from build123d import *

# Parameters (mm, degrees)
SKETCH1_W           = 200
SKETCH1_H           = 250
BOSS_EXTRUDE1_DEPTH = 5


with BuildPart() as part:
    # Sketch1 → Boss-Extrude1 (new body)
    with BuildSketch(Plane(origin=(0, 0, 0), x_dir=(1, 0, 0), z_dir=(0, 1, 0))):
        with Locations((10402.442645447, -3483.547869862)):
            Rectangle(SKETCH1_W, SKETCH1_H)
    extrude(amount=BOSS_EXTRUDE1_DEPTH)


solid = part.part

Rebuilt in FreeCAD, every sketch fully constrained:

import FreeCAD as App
import Part
import Sketcher
Q = App.Units.Quantity

doc = App.newDocument("Part")
body = doc.addObject("PartDesign::Body", "Body")

# Sketch on XZ plane
sketch1 = doc.addObject("Sketcher::SketchObject", "Sketch")
body.addObject(sketch1)
sketch1.AttachmentSupport = (doc.XZ_Plane, [""])
sketch1.MapMode = "FlatFace"
sketch1.addGeometry([
    Part.LineSegment(App.Vector(10302, 3359, 0), App.Vector(10302, 3609, 0)),
    Part.LineSegment(App.Vector(10302, 3609, 0), App.Vector(10502, 3609, 0)),
    Part.LineSegment(App.Vector(10502, 3609, 0), App.Vector(10502, 3359, 0)),
    Part.LineSegment(App.Vector(10502, 3359, 0), App.Vector(10302, 3359, 0)),
], False)
sketch1.addConstraint([
    Sketcher.Constraint("Coincident", 0, 2, 1, 1),
    Sketcher.Constraint("Coincident", 1, 2, 2, 1),
    Sketcher.Constraint("Coincident", 2, 2, 3, 1),
    Sketcher.Constraint("Coincident", 3, 2, 0, 1),
    Sketcher.Constraint("Vertical", 0),
    Sketcher.Constraint("Horizontal", 1),
    Sketcher.Constraint("Vertical", 2),
    Sketcher.Constraint("Horizontal", 3),
    Sketcher.Constraint("DistanceX", 1, 1, 1, 2, Q("200 mm")),
    Sketcher.Constraint("DistanceY", 0, 1, 0, 2, Q("250 mm")),
    Sketcher.Constraint("DistanceY", -1, 1, 0, 2, Q("3608.54787 mm")),
    Sketcher.Constraint("DistanceX", -1, 1, 0, 2, Q("10302.442645 mm")),
])
pad1 = doc.addObject("PartDesign::Pad", "Pad")
body.addObject(pad1)
pad1.Profile = sketch1
pad1.Length = 5
pad1.Reversed = True

doc.recompute()
